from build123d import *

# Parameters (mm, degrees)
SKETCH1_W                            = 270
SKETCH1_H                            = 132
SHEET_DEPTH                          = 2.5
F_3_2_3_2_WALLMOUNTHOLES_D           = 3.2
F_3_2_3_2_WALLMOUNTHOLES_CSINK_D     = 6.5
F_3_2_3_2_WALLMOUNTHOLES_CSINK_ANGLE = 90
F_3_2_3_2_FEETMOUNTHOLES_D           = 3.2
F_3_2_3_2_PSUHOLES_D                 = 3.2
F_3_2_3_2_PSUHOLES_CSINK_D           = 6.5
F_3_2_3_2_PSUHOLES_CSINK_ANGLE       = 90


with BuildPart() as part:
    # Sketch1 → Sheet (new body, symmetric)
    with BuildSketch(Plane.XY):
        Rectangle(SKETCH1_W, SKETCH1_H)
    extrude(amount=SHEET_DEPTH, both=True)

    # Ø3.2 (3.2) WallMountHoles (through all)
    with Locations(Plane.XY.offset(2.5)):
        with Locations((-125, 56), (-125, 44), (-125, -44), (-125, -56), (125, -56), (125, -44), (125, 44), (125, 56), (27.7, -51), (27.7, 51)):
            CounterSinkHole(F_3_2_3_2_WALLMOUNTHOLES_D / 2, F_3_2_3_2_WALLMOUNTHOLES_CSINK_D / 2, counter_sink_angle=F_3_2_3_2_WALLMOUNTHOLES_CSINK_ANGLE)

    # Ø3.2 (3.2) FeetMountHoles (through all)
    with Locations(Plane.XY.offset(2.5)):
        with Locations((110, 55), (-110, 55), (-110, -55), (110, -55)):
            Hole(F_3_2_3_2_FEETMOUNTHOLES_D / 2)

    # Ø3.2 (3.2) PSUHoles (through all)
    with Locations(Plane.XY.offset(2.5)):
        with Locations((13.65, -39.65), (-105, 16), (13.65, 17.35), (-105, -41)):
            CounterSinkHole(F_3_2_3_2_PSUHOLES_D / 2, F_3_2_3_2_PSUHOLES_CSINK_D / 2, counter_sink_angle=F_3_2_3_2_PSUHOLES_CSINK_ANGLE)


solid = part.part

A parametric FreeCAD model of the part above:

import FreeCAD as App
import Part
import Sketcher
from FreeCAD import Vector

doc = App.newDocument("Part")
params = doc.addObject("Spreadsheet::Sheet", "Params")
for row, (alias, value) in enumerate([
    ("sketch1_width", "270 mm"),
    ("sketch1_height", "132 mm"),
    ("pad1_length", "5 mm"),
    ("sketch2_diameter", "3.2 mm"),
    ("hole_diameter", "3.2 mm"),
    ("hole_csink_diameter", "6.5 mm"),
    ("sketch3_diameter", "3.2 mm"),
    ("hole2_diameter", "3.2 mm"),
    ("sketch4_diameter", "3.2 mm"),
    ("hole3_diameter", "3.2 mm"),
    ("hole3_csink_diameter", "6.5 mm"),
], start=1):
    params.set(f"A{row}", alias)
    params.set(f"B{row}", "=" + value)
    params.setAlias(f"B{row}", alias)

body = doc.addObject("PartDesign::Body", "Body")

sketch1 = doc.addObject("Sketcher::SketchObject", "Sketch")
body.addObject(sketch1)
sketch1.AttachmentSupport = (doc.XY_Plane, [""])
sketch1.MapMode = "FlatFace"
sketch1.addGeometry([
    Part.LineSegment(Vector(-135, 66, 0), Vector(-135, -66, 0)),
    Part.LineSegment(Vector(-135, -66, 0), Vector(135, -66, 0)),
    Part.LineSegment(Vector(135, -66, 0), Vector(135, 66, 0)),
    Part.LineSegment(Vector(135, 66, 0), Vector(-135, 66, 0)),
], False)
sketch1.addConstraint([
    Sketcher.Constraint("Coincident", 0, 2, 1, 1),
    Sketcher.Constraint("Coincident", 1, 2, 2, 1),
    Sketcher.Constraint("Coincident", 2, 2, 3, 1),
    Sketcher.Constraint("Coincident", 3, 2, 0, 1),
    Sketcher.Constraint("Vertical", 0),
    Sketcher.Constraint("Horizontal", 1),
    Sketcher.Constraint("Vertical", 2),
    Sketcher.Constraint("Horizontal", 3),
    Sketcher.Constraint("Symmetric", 0, 2, 2, 2, -1, 1),
    Sketcher.Constraint("DistanceX", 1, 1, 1, 2, 270.0),
    Sketcher.Constraint("DistanceY", 0, 2, 0, 1, 132.0),
])
sketch1.setExpression("Constraints[9]", "Params.sketch1_width")
sketch1.setExpression("Constraints[10]", "Params.sketch1_height")
pad1 = doc.addObject("PartDesign::Pad", "Pad")
body.addObject(pad1)
pad1.Profile = sketch1
pad1.setExpression("Length", "Params.pad1_length")
pad1.Midplane = True

sketch2 = doc.addObject("Sketcher::SketchObject", "Sketch001")
body.addObject(sketch2)
sketch2.AttachmentSupport = (doc.XY_Plane, [""])
sketch2.MapMode = "FlatFace"
sketch2.AttachmentOffset = App.Placement(Vector(0, 0, 2.5), App.Rotation())
sketch2.addGeometry([
    Part.Circle(Vector(-125, 56, 0), Vector(0, 0, 1), 1.6),
    Part.Circle(Vector(-125, 44, 0), Vector(0, 0, 1), 1.6),
    Part.Circle(Vector(-125, -44, 0), Vector(0, 0, 1), 1.6),
    Part.Circle(Vector(-125, -56, 0), Vector(0, 0, 1), 1.6),
    Part.Circle(Vector(125, -56, 0), Vector(0, 0, 1), 1.6),
    Part.Circle(Vector(125, -44, 0), Vector(0, 0, 1), 1.6),
    Part.Circle(Vector(125, 44, 0), Vector(0, 0, 1), 1.6),
    Part.Circle(Vector(125, 56, 0), Vector(0, 0, 1), 1.6),
    Part.Circle(Vector(27.7, -51, 0), Vector(0, 0, 1), 1.6),
    Part.Circle(Vector(27.7, 51, 0), Vector(0, 0, 1), 1.6),
], False)
sketch2.addConstraint([
    Sketcher.Constraint("Equal", 0, 1),
    Sketcher.Constraint("Equal", 1, 2),
    Sketcher.Constraint("Equal", 2, 3),
    Sketcher.Constraint("Equal", 3, 4),
    Sketcher.Constraint("Equal", 4, 5),
    Sketcher.Constraint("Equal", 5, 6),
    Sketcher.Constraint("Equal", 6, 7),
    Sketcher.Constraint("Equal", 7, 8),
    Sketcher.Constraint("Equal", 8, 9),
    Sketcher.Constraint("Symmetric", 0, 3, 4, 3, -1, 1),
    Sketcher.Constraint("Symmetric", 1, 3, 5, 3, -1, 1),
    Sketcher.Constraint("Symmetric", 2, 3, 6, 3, -1, 1),
    Sketcher.Constraint("Symmetric", 3, 3, 7, 3, -1, 1),
    Sketcher.Constraint("Symmetric", 3, 3, 4, 3, -2),
    Sketcher.Constraint("Symmetric", 2, 3, 5, 3, -2),
    Sketcher.Constraint("Symmetric", 8, 3, 9, 3, -1),
    Sketcher.Constraint("Vertical", 0, 3, 1, 3),
    Sketcher.Constraint("Diameter", 0, 3.2),
    Sketcher.Constraint("DistanceX", 0, 3, -1, 1, 125.0),
    Sketcher.Constraint("DistanceY", -1, 1, 0, 3, 56.0),
    Sketcher.Constraint("DistanceY", -1, 1, 1, 3, 44.0),
    Sketcher.Constraint("DistanceY", 8, 3, -1, 1, 51.0),
    Sketcher.Constraint("DistanceX", -1, 1, 8, 3, 27.7),
])
sketch2.setExpression("Constraints[17]", "Params.sketch2_diameter")
doc.recompute()
hole = doc.addObject("PartDesign::Hole", "Hole")
body.addObject(hole)
hole.Profile = sketch2
hole.ThreadType = "None"
hole.setExpression("Diameter", "Params.hole_diameter")
hole.DepthType = "ThroughAll"
hole.HoleCutType = "Countersink"
hole.setExpression("HoleCutDiameter", "Params.hole_csink_diameter")
hole.HoleCutCountersinkAngle = 90

sketch3 = doc.addObject("Sketcher::SketchObject", "Sketch002")
body.addObject(sketch3)
sketch3.AttachmentSupport = (doc.XY_Plane, [""])
sketch3.MapMode = "FlatFace"
sketch3.AttachmentOffset = App.Placement(Vector(0, 0, 2.5), App.Rotation())
sketch3.addGeometry([
    Part.Circle(Vector(110, 55, 0), Vector(0, 0, 1), 1.6),
    Part.Circle(Vector(-110, 55, 0), Vector(0, 0, 1), 1.6),
    Part.Circle(Vector(-110, -55, 0), Vector(0, 0, 1), 1.6),
    Part.Circle(Vector(110, -55, 0), Vector(0, 0, 1), 1.6),
], False)
sketch3.addConstraint([
    Sketcher.Constraint("Equal", 0, 1),
    Sketcher.Constraint("Equal", 1, 2),
    Sketcher.Constraint("Equal", 2, 3),
    Sketcher.Constraint("Symmetric", 0, 3, 2, 3, -1, 1),
    Sketcher.Constraint("Symmetric", 1, 3, 3, 3, -1, 1),
    Sketcher.Constraint("Symmetric", 0, 3, 1, 3, -2),
    Sketcher.Constraint("Diameter", 0, 3.2),
    Sketcher.Constraint("DistanceX", -1, 1, 0, 3, 110.0),
    Sketcher.Constraint("DistanceY", -1, 1, 0, 3, 55.0),
])
sketch3.setExpression("Constraints[6]", "Params.sketch3_diameter")
doc.recompute()
hole2 = doc.addObject("PartDesign::Hole", "Hole001")
body.addObject(hole2)
hole2.Profile = sketch3
hole2.ThreadType = "None"
hole2.setExpression("Diameter", "Params.hole2_diameter")
hole2.DepthType = "ThroughAll"

sketch4 = doc.addObject("Sketcher::SketchObject", "Sketch003")
body.addObject(sketch4)
sketch4.AttachmentSupport = (doc.XY_Plane, [""])
sketch4.MapMode = "FlatFace"
sketch4.AttachmentOffset = App.Placement(Vector(0, 0, 2.5), App.Rotation())
sketch4.addGeometry([
    Part.Circle(Vector(13.65, -39.65, 0), Vector(0, 0, 1), 1.6),
    Part.Circle(Vector(-105, 16, 0), Vector(0, 0, 1), 1.6),
    Part.Circle(Vector(13.65, 17.35, 0), Vector(0, 0, 1), 1.6),
    Part.Circle(Vector(-105, -41, 0), Vector(0, 0, 1), 1.6),
], False)
sketch4.addConstraint([
    Sketcher.Constraint("Equal", 0, 1),
    Sketcher.Constraint("Equal", 1, 2),
    Sketcher.Constraint("Equal", 2, 3),
    Sketcher.Constraint("Vertical", 0, 3, 2, 3),
    Sketcher.Constraint("Vertical", 1, 3, 3, 3),
    Sketcher.Constraint("Diameter", 0, 3.2),
    Sketcher.Constraint("DistanceX", 1, 3, -1, 1, 105.0),
    Sketcher.Constraint("DistanceY", -1, 1, 1, 3, 16.0),
    Sketcher.Constraint("DistanceY", 3, 3, -1, 1, 41.0),
    Sketcher.Constraint("DistanceY", 0, 3, 2, 3, 57.0),
    Sketcher.Constraint("DistanceX", -1, 1, 0, 3, 13.65),
    Sketcher.Constraint("DistanceY", 0, 3, -1, 1, 39.65),
])
sketch4.setExpression("Constraints[5]", "Params.sketch4_diameter")
doc.recompute()
hole3 = doc.addObject("PartDesign::Hole", "Hole002")
body.addObject(hole3)
hole3.Profile = sketch4
hole3.ThreadType = "None"
hole3.setExpression("Diameter", "Params.hole3_diameter")
hole3.DepthType = "ThroughAll"
hole3.HoleCutType = "Countersink"
hole3.setExpression("HoleCutDiameter", "Params.hole3_csink_diameter")
hole3.HoleCutCountersinkAngle = 90

doc.recompute()
